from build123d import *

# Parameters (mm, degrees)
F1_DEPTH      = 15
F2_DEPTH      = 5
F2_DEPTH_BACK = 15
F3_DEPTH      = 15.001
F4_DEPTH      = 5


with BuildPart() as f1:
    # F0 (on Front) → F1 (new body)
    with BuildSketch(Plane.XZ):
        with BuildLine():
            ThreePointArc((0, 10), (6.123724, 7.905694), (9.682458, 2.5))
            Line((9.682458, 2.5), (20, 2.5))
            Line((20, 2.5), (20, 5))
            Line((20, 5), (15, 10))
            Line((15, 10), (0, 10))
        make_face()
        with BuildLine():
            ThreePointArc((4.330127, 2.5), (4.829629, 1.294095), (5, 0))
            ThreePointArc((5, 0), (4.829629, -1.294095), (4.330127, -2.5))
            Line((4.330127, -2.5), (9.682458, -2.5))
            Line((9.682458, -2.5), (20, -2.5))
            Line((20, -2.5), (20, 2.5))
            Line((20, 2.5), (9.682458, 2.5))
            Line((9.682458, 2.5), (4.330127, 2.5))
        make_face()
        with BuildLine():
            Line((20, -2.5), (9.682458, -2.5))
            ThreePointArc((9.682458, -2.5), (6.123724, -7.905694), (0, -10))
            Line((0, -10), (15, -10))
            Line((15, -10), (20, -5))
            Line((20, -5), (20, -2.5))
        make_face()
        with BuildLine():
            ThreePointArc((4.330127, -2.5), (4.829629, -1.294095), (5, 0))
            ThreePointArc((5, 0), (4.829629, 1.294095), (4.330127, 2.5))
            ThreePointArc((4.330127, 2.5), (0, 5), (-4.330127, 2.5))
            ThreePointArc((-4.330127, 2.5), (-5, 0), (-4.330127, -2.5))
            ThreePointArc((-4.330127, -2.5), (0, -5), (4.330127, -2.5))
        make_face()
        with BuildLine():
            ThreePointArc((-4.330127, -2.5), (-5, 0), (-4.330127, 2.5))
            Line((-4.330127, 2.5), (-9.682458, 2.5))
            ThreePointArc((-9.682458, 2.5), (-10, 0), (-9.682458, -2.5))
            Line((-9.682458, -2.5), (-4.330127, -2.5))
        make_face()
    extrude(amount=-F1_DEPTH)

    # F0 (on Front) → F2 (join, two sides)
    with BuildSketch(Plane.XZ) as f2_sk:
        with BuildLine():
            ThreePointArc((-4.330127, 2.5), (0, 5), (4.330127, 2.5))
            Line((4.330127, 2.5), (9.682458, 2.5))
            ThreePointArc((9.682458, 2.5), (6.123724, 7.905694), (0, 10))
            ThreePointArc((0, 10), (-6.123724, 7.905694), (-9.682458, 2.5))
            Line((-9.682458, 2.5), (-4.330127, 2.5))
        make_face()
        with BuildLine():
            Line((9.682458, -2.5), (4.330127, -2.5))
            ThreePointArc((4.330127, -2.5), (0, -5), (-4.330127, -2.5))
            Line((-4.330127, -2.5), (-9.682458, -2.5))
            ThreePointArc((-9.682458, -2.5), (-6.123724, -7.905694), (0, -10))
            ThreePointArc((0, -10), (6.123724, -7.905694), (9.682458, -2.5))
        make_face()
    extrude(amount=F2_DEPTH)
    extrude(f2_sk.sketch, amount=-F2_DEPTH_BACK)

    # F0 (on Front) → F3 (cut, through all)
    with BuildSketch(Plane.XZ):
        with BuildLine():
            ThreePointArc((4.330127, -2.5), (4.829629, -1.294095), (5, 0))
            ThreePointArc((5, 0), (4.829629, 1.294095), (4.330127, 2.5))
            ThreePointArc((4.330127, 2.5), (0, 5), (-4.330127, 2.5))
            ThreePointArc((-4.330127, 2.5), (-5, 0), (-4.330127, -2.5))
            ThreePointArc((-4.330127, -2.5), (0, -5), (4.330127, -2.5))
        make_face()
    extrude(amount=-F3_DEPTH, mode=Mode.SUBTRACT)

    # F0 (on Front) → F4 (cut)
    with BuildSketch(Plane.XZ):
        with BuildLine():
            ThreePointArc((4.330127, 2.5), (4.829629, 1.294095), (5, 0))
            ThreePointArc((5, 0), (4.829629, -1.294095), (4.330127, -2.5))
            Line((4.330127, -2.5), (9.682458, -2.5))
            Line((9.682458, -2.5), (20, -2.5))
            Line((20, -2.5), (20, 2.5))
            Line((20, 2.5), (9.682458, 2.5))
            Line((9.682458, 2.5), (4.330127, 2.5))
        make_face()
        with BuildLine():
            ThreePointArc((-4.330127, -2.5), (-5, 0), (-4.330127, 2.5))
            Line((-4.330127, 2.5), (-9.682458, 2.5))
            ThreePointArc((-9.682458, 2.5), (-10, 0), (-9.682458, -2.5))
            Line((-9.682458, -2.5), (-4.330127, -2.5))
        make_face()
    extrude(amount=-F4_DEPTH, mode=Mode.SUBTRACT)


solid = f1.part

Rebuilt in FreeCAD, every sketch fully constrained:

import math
import FreeCAD as App
import Part
import Sketcher
from FreeCAD import Vector

doc = App.newDocument("Part")
body = doc.addObject("PartDesign::Body", "Body")

# Sketch on XZ plane
sketch1 = doc.addObject("Sketcher::SketchObject", "Sketch")
body.addObject(sketch1)
sketch1.AttachmentSupport = (doc.XZ_Plane, [""])
sketch1.MapMode = "FlatFace"
sketch1.addGeometry(Part.ArcOfCircle(Part.Circle(Vector(0, 0, 0), Vector(0, 0, 1), 10), math.radians(14), math.radians(90)), False)
sketch1.addGeometry(Part.LineSegment(Vector(9.7, 2.5, 0), Vector(4.3, 2.5, 0)), False)
sketch1.addGeometry(Part.ArcOfCircle(Part.Circle(Vector(0, 0, 0), Vector(0, 0, 1), 5), math.radians(30), math.radians(150)), False)
sketch1.addGeometry(Part.LineSegment(Vector(-4.3, 2.5, 0), Vector(-9.7, 2.5, 0)), False)
sketch1.addGeometry(Part.ArcOfCircle(Part.Circle(Vector(0, 0, 0), Vector(0, 0, 1), 10), math.radians(166), math.radians(194)), False)
sketch1.addGeometry(Part.LineSegment(Vector(-9.7, -2.5, 0), Vector(-4.3, -2.5, 0)), False)
sketch1.addGeometry(Part.ArcOfCircle(Part.Circle(Vector(0, 0, 0), Vector(0, 0, 1), 5), math.radians(-150), math.radians(-30)), False)
sketch1.addGeometry(Part.LineSegment(Vector(4.3, -2.5, 0), Vector(9.7, -2.5, 0)), False)
sketch1.addGeometry(Part.ArcOfCircle(Part.Circle(Vector(0, 0, 0), Vector(0, 0, 1), 10), math.radians(-90), math.radians(-14)), False)
sketch1.addGeometry(Part.LineSegment(Vector(0, -10, 0), Vector(15, -10, 0)), False)
sketch1.addGeometry(Part.LineSegment(Vector(15, -10, 0), Vector(20, -5, 0)), False)
sketch1.addGeometry(Part.LineSegment(Vector(20, -5, 0), Vector(20, 5, 0)), False)
sketch1.addGeometry(Part.LineSegment(Vector(20, 5, 0), Vector(15, 10, 0)), False)
sketch1.addGeometry(Part.LineSegment(Vector(15, 10, 0), Vector(0, 10, 0)), False)
sketch1.addConstraint(Sketcher.Constraint("Coincident", 0, 1, 1, 1))
sketch1.addConstraint(Sketcher.Constraint("Coincident", 1, 2, 2, 1))
sketch1.addConstraint(Sketcher.Constraint("Coincident", 2, 2, 3, 1))
sketch1.addConstraint(Sketcher.Constraint("Coincident", 3, 2, 4, 1))
sketch1.addConstraint(Sketcher.Constraint("Coincident", 4, 2, 5, 1))
sketch1.addConstraint(Sketcher.Constraint("Coincident", 5, 2, 6, 1))
sketch1.addConstraint(Sketcher.Constraint("Coincident", 6, 2, 7, 1))
sketch1.addConstraint(Sketcher.Constraint("Coincident", 7, 2, 8, 2))
sketch1.addConstraint(Sketcher.Constraint("Tangent", 8, 1, 9, 1))
sketch1.addConstraint(Sketcher.Constraint("Coincident", 9, 2, 10, 1))
sketch1.addConstraint(Sketcher.Constraint("Coincident", 10, 2, 11, 1))
sketch1.addConstraint(Sketcher.Constraint("Coincident", 11, 2, 12, 1))
sketch1.addConstraint(Sketcher.Constraint("Coincident", 12, 2, 13, 1))
sketch1.addConstraint(Sketcher.Constraint("Tangent", 13, 2, 0, 2))
sketch1.addConstraint(Sketcher.Constraint("Horizontal", 1))
sketch1.addConstraint(Sketcher.Constraint("Horizontal", 3))
sketch1.addConstraint(Sketcher.Constraint("Horizontal", 5))
sketch1.addConstraint(Sketcher.Constraint("Horizontal", 7))
sketch1.addConstraint(Sketcher.Constraint("Horizontal", 9))
sketch1.addConstraint(Sketcher.Constraint("Vertical", 11))
sketch1.addConstraint(Sketcher.Constraint("Horizontal", 13))
sketch1.addConstraint(Sketcher.Constraint("Coincident", 0, 3, -1, 1))
sketch1.addConstraint(Sketcher.Constraint("Coincident", 2, 3, -1, 1))
sketch1.addConstraint(Sketcher.Constraint("Coincident", 6, 3, -1, 1))
sketch1.addConstraint(Sketcher.Constraint("Coincident", 8, 3, -1, 1))
sketch1.addConstraint(Sketcher.Constraint("Equal", 2, 6))
sketch1.addConstraint(Sketcher.Constraint("Equal", 0, 8))
sketch1.addConstraint(Sketcher.Constraint("Symmetric", 0, 1, 4, 2, -1, 1))
sketch1.addConstraint(Sketcher.Constraint("Symmetric", 3, 2, 7, 2, -1, 1))
sketch1.addConstraint(Sketcher.Constraint("Perpendicular", 10, 12))
sketch1.addConstraint(Sketcher.Constraint("Horizontal", 1, 2, 2, 2))
sketch1.addConstraint(Sketcher.Constraint("Vertical", 9, 2, 12, 2))
sketch1.addConstraint(Sketcher.Constraint("Equal", 10, 12))
sketch1.addConstraint(Sketcher.Constraint("Radius", 0, 10.0))
sketch1.addConstraint(Sketcher.Constraint("Radius", 2, 5.0))
sketch1.addConstraint(Sketcher.Constraint("DistanceX", 9, 1, 9, 2, 15.0))
sketch1.addConstraint(Sketcher.Constraint("DistanceY", 11, 1, 11, 2, 10.0))
sketch1.addConstraint(Sketcher.Constraint("DistanceY", 4, 2, 3, 2, 5.0))
sketch1.addConstraint(Sketcher.Constraint("Radius", 4, 9.999989))
pad1 = doc.addObject("PartDesign::Pad", "Pad")
body.addObject(pad1)
pad1.Profile = sketch1
pad1.Length = 15
pad1.Reversed = True

# Sketch on XZ plane
sketch2 = doc.addObject("Sketcher::SketchObject", "Sketch001")
body.addObject(sketch2)
sketch2.AttachmentSupport = (doc.XZ_Plane, [""])
sketch2.MapMode = "FlatFace"
sketch2.addGeometry(Part.ArcOfCircle(Part.Circle(Vector(0, 0, 0), Vector(0, 0, 1), 5), math.radians(30), math.radians(150)), False)
sketch2.addGeometry(Part.LineSegment(Vector(4.3, 2.5, 0), Vector(9.7, 2.5, 0)), False)
sketch2.addGeometry(Part.ArcOfCircle(Part.Circle(Vector(0, 0, 0), Vector(0, 0, 1), 10), math.radians(14), math.radians(90)), False)
sketch2.addGeometry(Part.ArcOfCircle(Part.Circle(Vector(0, 0, 0), Vector(0, 0, 1), 10), math.radians(90), math.radians(166)), False)
sketch2.addGeometry(Part.LineSegment(Vector(-9.7, 2.5, 0), Vector(-4.3, 2.5, 0)), False)
sketch2.addGeometry(Part.LineSegment(Vector(9.7, -2.5, 0), Vector(4.3, -2.5, 0)), False)
sketch2.addGeometry(Part.ArcOfCircle(Part.Circle(Vector(0, 0, 0), Vector(0, 0, 1), 5), math.radians(-150), math.radians(-30)), False)
sketch2.addGeometry(Part.LineSegment(Vector(-4.3, -2.5, 0), Vector(-9.7, -2.5, 0)), False)
sketch2.addGeometry(Part.ArcOfCircle(Part.Circle(Vector(0, 0, 0), Vector(0, 0, 1), 10), math.radians(-166), math.radians(-90)), False)
sketch2.addGeometry(Part.ArcOfCircle(Part.Circle(Vector(0, 0, 0), Vector(0, 0, 1), 10), math.radians(-90), math.radians(-14)), False)
sketch2.addConstraint(Sketcher.Constraint("Coincident", 0, 1, 1, 1))
sketch2.addConstraint(Sketcher.Constraint("Coincident", 1, 2, 2, 1))
sketch2.addConstraint(Sketcher.Constraint("Tangent", 2, 2, 3, 1))
sketch2.addConstraint(Sketcher.Constraint("Coincident", 3, 2, 4, 1))
sketch2.addConstraint(Sketcher.Constraint("Coincident", 4, 2, 0, 2))
sketch2.addConstraint(Sketcher.Constraint("Coincident", 5, 2, 6, 2))
sketch2.addConstraint(Sketcher.Constraint("Coincident", 6, 1, 7, 1))
sketch2.addConstraint(Sketcher.Constraint("Coincident", 7, 2, 8, 1))
sketch2.addConstraint(Sketcher.Constraint("Tangent", 8, 2, 9, 1))
sketch2.addConstraint(Sketcher.Constraint("Coincident", 9, 2, 5, 1))
sketch2.addConstraint(Sketcher.Constraint("Horizontal", 1))
sketch2.addConstraint(Sketcher.Constraint("Horizontal", 4))
sketch2.addConstraint(Sketcher.Constraint("Horizontal", 5))
sketch2.addConstraint(Sketcher.Constraint("Horizontal", 7))
sketch2.addConstraint(Sketcher.Constraint("Coincident", 0, 3, -1, 1))
sketch2.addConstraint(Sketcher.Constraint("Coincident", 2, 3, -1, 1))
sketch2.addConstraint(Sketcher.Constraint("Coincident", 6, 3, -1, 1))
sketch2.addConstraint(Sketcher.Constraint("Coincident", 8, 3, -1, 1))
sketch2.addConstraint(Sketcher.Constraint("Equal", 2, 3))
sketch2.addConstraint(Sketcher.Constraint("Equal", 0, 6))
sketch2.addConstraint(Sketcher.Constraint("Equal", 3, 8))
sketch2.addConstraint(Sketcher.Constraint("Equal", 8, 9))
sketch2.addConstraint(Sketcher.Constraint("PointOnObject", 2, 2, -2))
sketch2.addConstraint(Sketcher.Constraint("PointOnObject", 8, 2, -2))
sketch2.addConstraint(Sketcher.Constraint("Horizontal", 1, 2, 3, 2))
sketch2.addConstraint(Sketcher.Constraint("Horizontal", 5, 2, 6, 1))
sketch2.addConstraint(Sketcher.Constraint("Vertical", 0, 1, 5, 2))
sketch2.addConstraint(Sketcher.Constraint("Radius", 0, 5.0))
sketch2.addConstraint(Sketcher.Constraint("Radius", 2, 10.0))
sketch2.addConstraint(Sketcher.Constraint("DistanceY", 5, 2, 0, 1, 5.0))
pad2 = doc.addObject("PartDesign::Pad", "Pad001")
body.addObject(pad2)
pad2.Profile = sketch2
pad2.Type = "TwoLengths"
pad2.Length = 5
pad2.Length2 = 15

# Sketch on XZ plane
sketch3 = doc.addObject("Sketcher::SketchObject", "Sketch002")
body.addObject(sketch3)
sketch3.AttachmentSupport = (doc.XZ_Plane, [""])
sketch3.MapMode = "FlatFace"
sketch3.addGeometry(Part.ArcOfCircle(Part.Circle(Vector(0, 0, 0), Vector(0, 0, 1), 5), math.radians(-30), math.radians(0)), False)
sketch3.addGeometry(Part.ArcOfCircle(Part.Circle(Vector(0, 0, 0), Vector(0, 0, 1), 5), math.radians(0), math.radians(30)), False)
sketch3.addGeometry(Part.ArcOfCircle(Part.Circle(Vector(0, 0, 0), Vector(0, 0, 1), 5), math.radians(30), math.radians(150)), False)
sketch3.addGeometry(Part.ArcOfCircle(Part.Circle(Vector(0, 0, 0), Vector(0, 0, 1), 5), math.radians(150), math.radians(210)), False)
sketch3.addGeometry(Part.ArcOfCircle(Part.Circle(Vector(0, 0, 0), Vector(0, 0, 1), 5), math.radians(-150), math.radians(-30)), False)
sketch3.addConstraint(Sketcher.Constraint("Tangent", 0, 2, 1, 1))
sketch3.addConstraint(Sketcher.Constraint("Tangent", 1, 2, 2, 1))
sketch3.addConstraint(Sketcher.Constraint("Tangent", 2, 2, 3, 1))
sketch3.addConstraint(Sketcher.Constraint("Tangent", 3, 2, 4, 1))
sketch3.addConstraint(Sketcher.Constraint("Tangent", 4, 2, 0, 1))
sketch3.addConstraint(Sketcher.Constraint("Coincident", 0, 3, -1, 1))
sketch3.addConstraint(Sketcher.Constraint("Coincident", 2, 3, -1, 1))
sketch3.addConstraint(Sketcher.Constraint("PointOnObject", 0, 2, -1))
sketch3.addConstraint(Sketcher.Constraint("Horizontal", 1, 2, 2, 2))
sketch3.addConstraint(Sketcher.Constraint("Horizontal", 3, 2, 4, 2))
sketch3.addConstraint(Sketcher.Constraint("Vertical", 2, 2, 3, 2))
sketch3.addConstraint(Sketcher.Constraint("Radius", 2, 5.0))
sketch3.addConstraint(Sketcher.Constraint("DistanceY", 3, 2, 2, 2, 5.0))
pocket1 = doc.addObject("PartDesign::Pocket", "Pocket")
body.addObject(pocket1)
pocket1.Profile = sketch3
pocket1.Type = "ThroughAll"

# Sketch on XZ plane
sketch4 = doc.addObject("Sketcher::SketchObject", "Sketch003")
body.addObject(sketch4)
sketch4.AttachmentSupport = (doc.XZ_Plane, [""])
sketch4.MapMode = "FlatFace"
sketch4.addGeometry(Part.ArcOfCircle(Part.Circle(Vector(0, 0, 0), Vector(0, 0, 1), 5), math.radians(0), math.radians(30)), False)
sketch4.addGeometry(Part.ArcOfCircle(Part.Circle(Vector(0, 0, 0), Vector(0, 0, 1), 5), math.radians(-30), math.radians(0)), False)
sketch4.addGeometry(Part.LineSegment(Vector(4.3, -2.5, 0), Vector(20, -2.5, 0)), False)
sketch4.addGeometry(Part.LineSegment(Vector(20, -2.5, 0), Vector(20, 2.5, 0)), False)
sketch4.addGeometry(Part.LineSegment(Vector(20, 2.5, 0), Vector(4.3, 2.5, 0)), False)
sketch4.addGeometry(Part.ArcOfCircle(Part.Circle(Vector(0, 0, 0), Vector(0, 0, 1), 5), math.radians(150), math.radians(210)), False)
sketch4.addGeometry(Part.LineSegment(Vector(-4.3, 2.5, 0), Vector(-9.7, 2.5, 0)), False)
sketch4.addGeometry(Part.ArcOfCircle(Part.Circle(Vector(0, 0, 0), Vector(0, 0, 1), 10), math.radians(166), math.radians(194)), False)
sketch4.addGeometry(Part.LineSegment(Vector(-9.7, -2.5, 0), Vector(-4.3, -2.5, 0)), False)
sketch4.addConstraint(Sketcher.Constraint("Tangent", 0, 1, 1, 2))
sketch4.addConstraint(Sketcher.Constraint("Coincident", 1, 1, 2, 1))
sketch4.addConstraint(Sketcher.Constraint("Coincident", 2, 2, 3, 1))
sketch4.addConstraint(Sketcher.Constraint("Coincident", 3, 2, 4, 1))
sketch4.addConstraint(Sketcher.Constraint("Coincident", 4, 2, 0, 2))
sketch4.addConstraint(Sketcher.Constraint("Coincident", 5, 1, 6, 1))
sketch4.addConstraint(Sketcher.Constraint("Coincident", 6, 2, 7, 1))
sketch4.addConstraint(Sketcher.Constraint("Coincident", 7, 2, 8, 1))
sketch4.addConstraint(Sketcher.Constraint("Coincident", 8, 2, 5, 2))
sketch4.addConstraint(Sketcher.Constraint("Horizontal", 2))
sketch4.addConstraint(Sketcher.Constraint("Vertical", 3))
sketch4.addConstraint(Sketcher.Constraint("Horizontal", 4))
sketch4.addConstraint(Sketcher.Constraint("Horizontal", 6))
sketch4.addConstraint(Sketcher.Constraint("Horizontal", 8))
sketch4.addConstraint(Sketcher.Constraint("Coincident", 0, 3, -1, 1))
sketch4.addConstraint(Sketcher.Constraint("Coincident", 5, 3, -1, 1))
sketch4.addConstraint(Sketcher.Constraint("Coincident", 7, 3, 0, 3))
sketch4.addConstraint(Sketcher.Constraint("Equal", 0, 1))
sketch4.addConstraint(Sketcher.Constraint("Symmetric", 1, 1, 5, 1, -1, 1))
sketch4.addConstraint(Sketcher.Constraint("PointOnObject", 0, 1, -1))
sketch4.addConstraint(Sketcher.Constraint("Horizontal", 4, 2, 5, 1))
sketch4.addConstraint(Sketcher.Constraint("Horizontal", 2, 2, 7, 2))
sketch4.addConstraint(Sketcher.Constraint("Radius", 5, 5.0))
sketch4.addConstraint(Sketcher.Constraint("DistanceY", 3, 1, 3, 2, 5.0))
sketch4.addConstraint(Sketcher.Constraint("DistanceX", -1, 1, 2, 2, 20.0))
sketch4.addConstraint(Sketcher.Constraint("Radius", 7, 9.999989))
pocket2 = doc.addObject("PartDesign::Pocket", "Pocket001")
body.addObject(pocket2)
pocket2.Profile = sketch4
pocket2.Length = 5

doc.recompute()
